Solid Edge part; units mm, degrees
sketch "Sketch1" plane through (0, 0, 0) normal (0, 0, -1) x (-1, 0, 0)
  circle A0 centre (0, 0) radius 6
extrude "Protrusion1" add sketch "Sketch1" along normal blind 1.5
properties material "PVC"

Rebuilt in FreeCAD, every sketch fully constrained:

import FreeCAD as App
import Part
import Sketcher
Q = App.Units.Quantity

doc = App.newDocument("Part")
body = doc.addObject("PartDesign::Body", "Body")

# Sketch on XY plane
sketch1 = doc.addObject("Sketcher::SketchObject", "Sketch")
body.addObject(sketch1)
sketch1.AttachmentSupport = (doc.XY_Plane, [""])
sketch1.MapMode = "FlatFace"
sketch1.addGeometry(Part.Circle(App.Vector(0, 0, 0), App.Vector(0, 0, 1), 6), False)
sketch1.addConstraint(Sketcher.Constraint("Coincident", 0, 3, -1, 1))
sketch1.addConstraint(Sketcher.Constraint("Diameter", 0, Q("12 mm")))
pad1 = doc.addObject("PartDesign::Pad", "Pad")
body.addObject(pad1)
pad1.Profile = sketch1
pad1.Length = 1.5
pad1.Reversed = True

doc.recompute()
